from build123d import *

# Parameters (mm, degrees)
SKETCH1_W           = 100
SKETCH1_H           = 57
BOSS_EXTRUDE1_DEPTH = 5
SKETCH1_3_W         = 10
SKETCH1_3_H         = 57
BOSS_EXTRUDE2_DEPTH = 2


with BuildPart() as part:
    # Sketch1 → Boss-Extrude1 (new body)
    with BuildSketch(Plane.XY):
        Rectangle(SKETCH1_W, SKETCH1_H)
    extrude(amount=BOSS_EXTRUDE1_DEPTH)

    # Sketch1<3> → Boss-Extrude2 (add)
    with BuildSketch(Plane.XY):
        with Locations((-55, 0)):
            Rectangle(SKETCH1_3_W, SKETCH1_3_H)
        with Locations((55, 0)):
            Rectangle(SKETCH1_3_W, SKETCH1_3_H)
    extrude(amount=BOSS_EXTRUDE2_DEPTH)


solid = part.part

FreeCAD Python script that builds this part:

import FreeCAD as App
import Part
import Sketcher

V = App.Vector

doc = App.newDocument("Part")
params = doc.addObject("Spreadsheet::Sheet", "Params")
for row, (alias, value) in enumerate([
    ("sketch1_width", "100 mm"),
    ("sketch1_height", "57 mm"),
    ("pad1_length", "5 mm"),
    ("sketch2_width", "10 mm"),
    ("sketch2_height", "57 mm"),
    ("pad2_length", "2 mm"),
], start=1):
    params.set(f"A{row}", alias)
    params.set(f"B{row}", "=" + value)
    params.setAlias(f"B{row}", alias)

body = doc.addObject("PartDesign::Body", "Body")

# Sketch on XY plane
sketch1 = body.newObject("Sketcher::SketchObject", "Sketch")
sketch1.AttachmentSupport = (doc.getObject("XY_Plane"), [""])
sketch1.MapMode = "FlatFace"
sketch1.addGeometry([
    Part.LineSegment(V(-50, 28, 0), V(-50, -28, 0)),
    Part.LineSegment(V(-50, -28, 0), V(50, -28, 0)),
    Part.LineSegment(V(50, -28, 0), V(50, 28, 0)),
    Part.LineSegment(V(50, 28, 0), V(-50, 28, 0)),
], False)
sketch1.addConstraint([
    Sketcher.Constraint("Coincident", 0, 2, 1, 1),
    Sketcher.Constraint("Coincident", 1, 2, 2, 1),
    Sketcher.Constraint("Coincident", 2, 2, 3, 1),
    Sketcher.Constraint("Coincident", 3, 2, 0, 1),
    Sketcher.Constraint("Vertical", 0),
    Sketcher.Constraint("Horizontal", 1),
    Sketcher.Constraint("Vertical", 2),
    Sketcher.Constraint("Horizontal", 3),
    Sketcher.Constraint("Symmetric", 0, 2, 2, 2, -1, 1),
    Sketcher.Constraint("DistanceX", 1, 1, 1, 2, 100.0),
    Sketcher.Constraint("DistanceY", 0, 2, 0, 1, 57.0),
])
sketch1.setExpression("Constraints[9]", "Params.sketch1_width")
sketch1.setExpression("Constraints[10]", "Params.sketch1_height")
pad1 = body.newObject("PartDesign::Pad", "Pad")
pad1.Profile = sketch1
pad1.setExpression("Length", "Params.pad1_length")

# Sketch on XY plane
sketch2 = body.newObject("Sketcher::SketchObject", "Sketch001")
sketch2.AttachmentSupport = (doc.getObject("XY_Plane"), [""])
sketch2.MapMode = "FlatFace"
sketch2.addGeometry([
    Part.LineSegment(V(-60, 28, 0), V(-60, -28, 0)),  # 0
    Part.LineSegment(V(-60, -28, 0), V(-50, -28, 0)),  # 1
    Part.LineSegment(V(-50, -28, 0), V(-50, 28, 0)),  # 2
    Part.LineSegment(V(-50, 28, 0), V(-60, 28, 0)),  # 3
    Part.LineSegment(V(50, 28, 0), V(50, -28, 0)),  # 4
    Part.LineSegment(V(50, -28, 0), V(60, -28, 0)),  # 5
    Part.LineSegment(V(60, -28, 0), V(60, 28, 0)),  # 6
    Part.LineSegment(V(60, 28, 0), V(50, 28, 0)),  # 7
], False)
sketch2.addConstraint([
    Sketcher.Constraint("Coincident", 0, 2, 1, 1),
    Sketcher.Constraint("Coincident", 1, 2, 2, 1),
    Sketcher.Constraint("Coincident", 2, 2, 3, 1),
    Sketcher.Constraint("Coincident", 3, 2, 0, 1),
    Sketcher.Constraint("Coincident", 4, 2, 5, 1),
    Sketcher.Constraint("Coincident", 5, 2, 6, 1),
    Sketcher.Constraint("Coincident", 6, 2, 7, 1),
    Sketcher.Constraint("Coincident", 7, 2, 4, 1),
    Sketcher.Constraint("Vertical", 0),
    Sketcher.Constraint("Horizontal", 1),
    Sketcher.Constraint("Vertical", 2),
    Sketcher.Constraint("Horizontal", 3),
    Sketcher.Constraint("Vertical", 4),
    Sketcher.Constraint("Horizontal", 5),
    Sketcher.Constraint("Vertical", 6),
    Sketcher.Constraint("Horizontal", 7),
    Sketcher.Constraint("Symmetric", 2, 2, 4, 2, -1, 1),
    Sketcher.Constraint("Symmetric", 0, 2, 6, 2, -1, 1),
    Sketcher.Constraint("Horizontal", 1, 2, 4, 2),
    Sketcher.Constraint("DistanceX", 1, 1, 1, 2, 10.0),
    Sketcher.Constraint("DistanceY", 0, 2, 0, 1, 57.0),
    Sketcher.Constraint("DistanceX", 0, 2, -1, 1, 60.0),
])
sketch2.setExpression("Constraints[19]", "Params.sketch2_width")
sketch2.setExpression("Constraints[20]", "Params.sketch2_height")
pad2 = body.newObject("PartDesign::Pad", "Pad001")
pad2.Profile = sketch2
pad2.setExpression("Length", "Params.pad2_length")

doc.recompute()
